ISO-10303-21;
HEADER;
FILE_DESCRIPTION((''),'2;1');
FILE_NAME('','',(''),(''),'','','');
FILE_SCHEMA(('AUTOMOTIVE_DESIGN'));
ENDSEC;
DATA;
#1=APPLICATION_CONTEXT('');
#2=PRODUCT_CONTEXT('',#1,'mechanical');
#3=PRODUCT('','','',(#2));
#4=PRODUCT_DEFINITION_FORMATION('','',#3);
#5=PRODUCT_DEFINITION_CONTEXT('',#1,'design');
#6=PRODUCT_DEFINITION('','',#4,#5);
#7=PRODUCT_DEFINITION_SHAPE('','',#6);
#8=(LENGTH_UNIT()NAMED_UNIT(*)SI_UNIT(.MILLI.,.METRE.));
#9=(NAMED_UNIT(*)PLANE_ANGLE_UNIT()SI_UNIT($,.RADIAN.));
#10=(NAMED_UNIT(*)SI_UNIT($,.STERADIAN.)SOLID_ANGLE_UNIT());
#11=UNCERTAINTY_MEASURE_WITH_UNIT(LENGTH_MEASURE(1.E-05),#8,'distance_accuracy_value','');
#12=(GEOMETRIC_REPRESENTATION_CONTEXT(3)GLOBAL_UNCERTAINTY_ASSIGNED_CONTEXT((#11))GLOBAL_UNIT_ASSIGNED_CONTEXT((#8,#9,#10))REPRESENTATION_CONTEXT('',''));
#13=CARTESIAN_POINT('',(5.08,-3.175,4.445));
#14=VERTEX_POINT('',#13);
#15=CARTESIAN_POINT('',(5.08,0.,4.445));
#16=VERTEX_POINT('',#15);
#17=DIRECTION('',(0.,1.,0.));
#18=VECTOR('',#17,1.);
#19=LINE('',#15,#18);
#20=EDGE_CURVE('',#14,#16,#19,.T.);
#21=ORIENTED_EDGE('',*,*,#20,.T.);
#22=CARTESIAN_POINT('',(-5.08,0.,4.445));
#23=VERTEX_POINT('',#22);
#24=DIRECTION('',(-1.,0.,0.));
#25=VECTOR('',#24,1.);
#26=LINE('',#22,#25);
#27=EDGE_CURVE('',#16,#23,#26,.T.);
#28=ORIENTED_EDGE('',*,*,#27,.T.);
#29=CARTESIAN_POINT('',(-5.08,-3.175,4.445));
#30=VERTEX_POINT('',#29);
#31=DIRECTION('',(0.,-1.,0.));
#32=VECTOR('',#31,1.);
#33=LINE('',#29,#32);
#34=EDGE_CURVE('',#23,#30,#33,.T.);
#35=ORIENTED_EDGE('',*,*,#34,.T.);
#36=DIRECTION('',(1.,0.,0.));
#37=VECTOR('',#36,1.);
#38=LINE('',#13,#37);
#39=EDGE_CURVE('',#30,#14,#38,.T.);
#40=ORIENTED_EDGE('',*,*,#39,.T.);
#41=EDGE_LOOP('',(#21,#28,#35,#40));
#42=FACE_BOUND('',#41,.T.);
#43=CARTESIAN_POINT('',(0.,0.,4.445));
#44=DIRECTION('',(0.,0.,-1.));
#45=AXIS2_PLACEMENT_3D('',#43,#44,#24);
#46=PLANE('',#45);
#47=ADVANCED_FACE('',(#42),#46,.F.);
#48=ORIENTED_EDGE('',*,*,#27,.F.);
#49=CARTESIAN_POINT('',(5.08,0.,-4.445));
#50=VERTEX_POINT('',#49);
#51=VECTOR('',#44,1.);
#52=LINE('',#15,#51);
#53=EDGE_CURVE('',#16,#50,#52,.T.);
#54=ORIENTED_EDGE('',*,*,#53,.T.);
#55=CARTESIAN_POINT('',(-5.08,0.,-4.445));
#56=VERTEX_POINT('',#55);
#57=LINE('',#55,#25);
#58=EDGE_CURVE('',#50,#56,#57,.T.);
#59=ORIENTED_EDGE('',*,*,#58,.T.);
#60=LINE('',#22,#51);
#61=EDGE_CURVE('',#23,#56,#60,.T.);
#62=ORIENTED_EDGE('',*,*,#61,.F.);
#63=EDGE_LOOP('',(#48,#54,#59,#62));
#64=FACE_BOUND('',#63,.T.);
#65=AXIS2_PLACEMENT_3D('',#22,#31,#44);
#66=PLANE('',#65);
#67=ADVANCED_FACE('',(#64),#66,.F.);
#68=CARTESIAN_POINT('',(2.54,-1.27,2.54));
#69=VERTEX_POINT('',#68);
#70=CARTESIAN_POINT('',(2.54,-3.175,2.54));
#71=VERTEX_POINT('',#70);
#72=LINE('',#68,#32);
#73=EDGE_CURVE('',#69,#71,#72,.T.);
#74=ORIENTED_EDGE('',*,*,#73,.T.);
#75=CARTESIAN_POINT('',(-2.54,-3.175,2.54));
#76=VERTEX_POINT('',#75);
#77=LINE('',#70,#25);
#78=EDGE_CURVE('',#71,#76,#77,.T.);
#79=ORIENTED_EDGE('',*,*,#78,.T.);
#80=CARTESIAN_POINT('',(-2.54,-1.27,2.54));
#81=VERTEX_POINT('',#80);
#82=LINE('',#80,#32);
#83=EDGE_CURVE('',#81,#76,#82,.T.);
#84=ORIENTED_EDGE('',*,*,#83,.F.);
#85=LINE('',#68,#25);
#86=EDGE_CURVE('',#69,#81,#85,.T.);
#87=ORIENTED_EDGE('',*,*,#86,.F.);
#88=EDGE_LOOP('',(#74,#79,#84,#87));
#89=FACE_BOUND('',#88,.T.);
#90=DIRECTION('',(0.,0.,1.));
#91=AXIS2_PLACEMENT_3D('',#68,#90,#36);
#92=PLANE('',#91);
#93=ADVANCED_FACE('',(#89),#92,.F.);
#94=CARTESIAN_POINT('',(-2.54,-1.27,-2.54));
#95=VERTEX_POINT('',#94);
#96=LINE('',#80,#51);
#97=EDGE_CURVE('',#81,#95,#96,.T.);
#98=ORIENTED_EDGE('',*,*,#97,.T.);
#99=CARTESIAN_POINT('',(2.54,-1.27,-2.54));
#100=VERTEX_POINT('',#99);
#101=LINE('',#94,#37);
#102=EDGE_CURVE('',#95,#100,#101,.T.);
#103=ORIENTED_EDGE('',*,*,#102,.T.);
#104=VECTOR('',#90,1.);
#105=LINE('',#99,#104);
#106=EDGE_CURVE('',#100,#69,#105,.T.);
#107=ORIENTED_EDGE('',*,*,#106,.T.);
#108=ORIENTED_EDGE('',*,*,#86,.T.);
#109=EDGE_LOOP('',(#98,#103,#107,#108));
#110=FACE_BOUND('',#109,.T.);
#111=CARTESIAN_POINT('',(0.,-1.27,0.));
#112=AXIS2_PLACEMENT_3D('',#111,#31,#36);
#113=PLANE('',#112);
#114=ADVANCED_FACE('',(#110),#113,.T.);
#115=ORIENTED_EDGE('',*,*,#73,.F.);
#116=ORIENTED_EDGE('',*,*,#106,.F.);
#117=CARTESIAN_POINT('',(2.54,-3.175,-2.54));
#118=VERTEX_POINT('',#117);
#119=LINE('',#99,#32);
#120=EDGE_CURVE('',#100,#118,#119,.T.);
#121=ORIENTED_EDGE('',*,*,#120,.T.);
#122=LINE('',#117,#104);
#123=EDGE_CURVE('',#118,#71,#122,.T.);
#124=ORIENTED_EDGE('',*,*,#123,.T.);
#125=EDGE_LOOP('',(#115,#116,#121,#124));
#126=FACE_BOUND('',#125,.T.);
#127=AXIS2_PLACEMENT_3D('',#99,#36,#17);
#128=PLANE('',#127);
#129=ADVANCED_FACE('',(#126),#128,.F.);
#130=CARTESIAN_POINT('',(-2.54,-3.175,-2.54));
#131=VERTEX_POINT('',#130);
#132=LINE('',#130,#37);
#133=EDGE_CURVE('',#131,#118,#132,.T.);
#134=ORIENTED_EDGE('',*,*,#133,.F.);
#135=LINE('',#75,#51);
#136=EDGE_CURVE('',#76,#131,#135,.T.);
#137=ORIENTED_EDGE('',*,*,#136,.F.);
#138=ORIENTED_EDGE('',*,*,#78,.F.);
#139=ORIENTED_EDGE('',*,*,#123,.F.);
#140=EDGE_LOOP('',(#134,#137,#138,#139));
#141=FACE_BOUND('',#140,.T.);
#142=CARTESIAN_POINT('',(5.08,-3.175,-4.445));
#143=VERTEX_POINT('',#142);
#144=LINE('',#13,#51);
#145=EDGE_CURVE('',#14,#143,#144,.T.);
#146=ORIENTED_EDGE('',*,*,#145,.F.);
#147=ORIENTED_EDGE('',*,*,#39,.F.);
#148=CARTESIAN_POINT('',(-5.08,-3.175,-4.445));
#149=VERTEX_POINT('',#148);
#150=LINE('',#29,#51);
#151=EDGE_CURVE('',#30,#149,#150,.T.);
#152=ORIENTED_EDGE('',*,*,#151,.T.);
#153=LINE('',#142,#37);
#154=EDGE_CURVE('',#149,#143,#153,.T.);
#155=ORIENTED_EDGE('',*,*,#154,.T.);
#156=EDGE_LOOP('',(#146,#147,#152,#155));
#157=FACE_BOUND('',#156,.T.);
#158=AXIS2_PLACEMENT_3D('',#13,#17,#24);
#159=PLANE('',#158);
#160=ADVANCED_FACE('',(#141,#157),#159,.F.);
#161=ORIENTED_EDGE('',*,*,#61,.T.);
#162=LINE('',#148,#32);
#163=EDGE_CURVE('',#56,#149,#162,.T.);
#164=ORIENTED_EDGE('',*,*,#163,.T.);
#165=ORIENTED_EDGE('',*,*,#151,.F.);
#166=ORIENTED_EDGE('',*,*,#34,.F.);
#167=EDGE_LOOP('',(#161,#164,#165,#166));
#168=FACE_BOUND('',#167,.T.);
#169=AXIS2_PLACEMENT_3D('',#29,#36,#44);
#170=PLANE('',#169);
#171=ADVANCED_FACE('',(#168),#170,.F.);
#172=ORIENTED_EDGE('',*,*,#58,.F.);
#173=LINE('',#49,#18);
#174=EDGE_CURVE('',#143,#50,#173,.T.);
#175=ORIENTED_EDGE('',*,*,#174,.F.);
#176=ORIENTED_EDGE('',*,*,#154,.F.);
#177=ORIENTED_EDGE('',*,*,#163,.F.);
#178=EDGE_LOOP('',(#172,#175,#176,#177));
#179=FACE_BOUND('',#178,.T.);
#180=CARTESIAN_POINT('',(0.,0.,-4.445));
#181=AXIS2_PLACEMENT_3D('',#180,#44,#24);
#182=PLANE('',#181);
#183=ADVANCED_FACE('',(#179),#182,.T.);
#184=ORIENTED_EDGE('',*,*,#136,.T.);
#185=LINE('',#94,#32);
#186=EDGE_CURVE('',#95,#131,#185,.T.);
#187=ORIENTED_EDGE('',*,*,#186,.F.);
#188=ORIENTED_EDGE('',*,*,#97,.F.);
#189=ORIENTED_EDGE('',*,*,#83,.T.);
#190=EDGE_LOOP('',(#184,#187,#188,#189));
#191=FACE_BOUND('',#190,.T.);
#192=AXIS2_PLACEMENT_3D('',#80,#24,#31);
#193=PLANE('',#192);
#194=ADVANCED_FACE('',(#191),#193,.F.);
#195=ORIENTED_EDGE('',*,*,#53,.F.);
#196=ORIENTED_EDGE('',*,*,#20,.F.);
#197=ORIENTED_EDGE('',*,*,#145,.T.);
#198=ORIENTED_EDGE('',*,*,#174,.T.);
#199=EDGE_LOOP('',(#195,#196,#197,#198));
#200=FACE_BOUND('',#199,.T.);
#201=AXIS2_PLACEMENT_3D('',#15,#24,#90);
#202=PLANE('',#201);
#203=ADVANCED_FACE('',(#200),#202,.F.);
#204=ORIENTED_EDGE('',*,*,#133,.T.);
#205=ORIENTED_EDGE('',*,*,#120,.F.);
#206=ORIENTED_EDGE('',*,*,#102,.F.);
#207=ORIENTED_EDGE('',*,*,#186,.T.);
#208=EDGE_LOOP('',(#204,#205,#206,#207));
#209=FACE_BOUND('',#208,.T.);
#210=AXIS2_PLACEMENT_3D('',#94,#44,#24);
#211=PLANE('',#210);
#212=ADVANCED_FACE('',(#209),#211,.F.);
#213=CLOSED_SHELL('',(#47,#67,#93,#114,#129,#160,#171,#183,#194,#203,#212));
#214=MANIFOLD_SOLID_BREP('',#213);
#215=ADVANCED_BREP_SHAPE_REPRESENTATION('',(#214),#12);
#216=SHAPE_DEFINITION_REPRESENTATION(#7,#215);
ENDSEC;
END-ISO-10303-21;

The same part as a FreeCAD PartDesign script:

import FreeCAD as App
import Part
import Sketcher
from FreeCAD import Vector
Q = App.Units.Quantity

doc = App.newDocument("Part")
body = doc.addObject("PartDesign::Body", "Body")

sketch1 = body.newObject("Sketcher::SketchObject", "Sketch")
sketch1.AttachmentSupport = (doc.getObject("XY_Plane"), [""])
sketch1.MapMode = "FlatFace"
sketch1.addGeometry(Part.LineSegment(Vector(-5.08, 0, 0), Vector(-5.08, -3.175, 0)), False)
sketch1.addGeometry(Part.LineSegment(Vector(-5.08, -3.175, 0), Vector(5.08, -3.175, 0)), False)
sketch1.addGeometry(Part.LineSegment(Vector(5.08, -3.175, 0), Vector(5.08, 0, 0)), False)
sketch1.addGeometry(Part.LineSegment(Vector(5.08, 0, 0), Vector(-5.08, 0, 0)), False)
sketch1.addConstraint(Sketcher.Constraint("Coincident", 0, 2, 1, 1))
sketch1.addConstraint(Sketcher.Constraint("Coincident", 1, 2, 2, 1))
sketch1.addConstraint(Sketcher.Constraint("Coincident", 2, 2, 3, 1))
sketch1.addConstraint(Sketcher.Constraint("Coincident", 3, 2, 0, 1))
sketch1.addConstraint(Sketcher.Constraint("Vertical", 0))
sketch1.addConstraint(Sketcher.Constraint("Horizontal", 1))
sketch1.addConstraint(Sketcher.Constraint("Vertical", 2))
sketch1.addConstraint(Sketcher.Constraint("Horizontal", 3))
sketch1.addConstraint(Sketcher.Constraint("Symmetric", 2, 2, 3, 2, -1, 1))
sketch1.addConstraint(Sketcher.Constraint("DistanceX", 1, 1, 1, 2, Q("0.4 in")))
sketch1.addConstraint(Sketcher.Constraint("DistanceY", 0, 2, 0, 1, Q("0.125 in")))
pad1 = body.newObject("PartDesign::Pad", "Pad")
pad1.Profile = sketch1
pad1.Length = Q("0.35 in")
pad1.Midplane = True

sketch2 = body.newObject("Sketcher::SketchObject", "Sketch001")
sketch2.AttachmentSupport = (doc.getObject("XZ_Plane"), [""])
sketch2.MapMode = "FlatFace"
sketch2.AttachmentOffset = App.Placement(Vector(0, 0, 0.125 * 25.4), App.Rotation())
sketch2.addGeometry(Part.LineSegment(Vector(-7.467, 6.832, 0), Vector(-7.467, -6.832, 0)), False)
sketch2.addGeometry(Part.LineSegment(Vector(-7.467, -6.832, 0), Vector(7.467, -6.832, 0)), False)
sketch2.addGeometry(Part.LineSegment(Vector(7.467, -6.832, 0), Vector(7.467, 6.832, 0)), False)
sketch2.addGeometry(Part.LineSegment(Vector(7.467, 6.832, 0), Vector(-7.467, 6.832, 0)), False)
sketch2.addGeometry(Part.LineSegment(Vector(5.08, -4.445, 0), Vector(-5.08, -4.445, 0)), False)
sketch2.addGeometry(Part.LineSegment(Vector(-5.08, -4.445, 0), Vector(-5.08, 4.445, 0)), False)
sketch2.addGeometry(Part.LineSegment(Vector(-5.08, 4.445, 0), Vector(5.08, 4.445, 0)), False)
sketch2.addGeometry(Part.LineSegment(Vector(5.08, 4.445, 0), Vector(5.08, -4.445, 0)), False)
sketch2.addGeometry(Part.LineSegment(Vector(-2.54, 2.54, 0), Vector(-2.54, -2.54, 0)), False)
sketch2.addGeometry(Part.LineSegment(Vector(-2.54, -2.54, 0), Vector(2.54, -2.54, 0)), False)
sketch2.addGeometry(Part.LineSegment(Vector(2.54, -2.54, 0), Vector(2.54, 2.54, 0)), False)
sketch2.addGeometry(Part.LineSegment(Vector(2.54, 2.54, 0), Vector(-2.54, 2.54, 0)), False)
sketch2.addConstraint(Sketcher.Constraint("Coincident", 0, 2, 1, 1))
sketch2.addConstraint(Sketcher.Constraint("Coincident", 1, 2, 2, 1))
sketch2.addConstraint(Sketcher.Constraint("Coincident", 2, 2, 3, 1))
sketch2.addConstraint(Sketcher.Constraint("Coincident", 3, 2, 0, 1))
sketch2.addConstraint(Sketcher.Constraint("Coincident", 4, 2, 5, 1))
sketch2.addConstraint(Sketcher.Constraint("Coincident", 5, 2, 6, 1))
sketch2.addConstraint(Sketcher.Constraint("Coincident", 6, 2, 7, 1))
sketch2.addConstraint(Sketcher.Constraint("Coincident", 7, 2, 4, 1))
sketch2.addConstraint(Sketcher.Constraint("Coincident", 8, 2, 9, 1))
sketch2.addConstraint(Sketcher.Constraint("Coincident", 9, 2, 10, 1))
sketch2.addConstraint(Sketcher.Constraint("Coincident", 10, 2, 11, 1))
sketch2.addConstraint(Sketcher.Constraint("Coincident", 11, 2, 8, 1))
sketch2.addConstraint(Sketcher.Constraint("Vertical", 0))
sketch2.addConstraint(Sketcher.Constraint("Horizontal", 1))
sketch2.addConstraint(Sketcher.Constraint("Vertical", 2))
sketch2.addConstraint(Sketcher.Constraint("Horizontal", 3))
sketch2.addConstraint(Sketcher.Constraint("Horizontal", 4))
sketch2.addConstraint(Sketcher.Constraint("Vertical", 5))
sketch2.addConstraint(Sketcher.Constraint("Horizontal", 6))
sketch2.addConstraint(Sketcher.Constraint("Vertical", 7))
sketch2.addConstraint(Sketcher.Constraint("Vertical", 8))
sketch2.addConstraint(Sketcher.Constraint("Horizontal", 9))
sketch2.addConstraint(Sketcher.Constraint("Vertical", 10))
sketch2.addConstraint(Sketcher.Constraint("Horizontal", 11))
sketch2.addConstraint(Sketcher.Constraint("Symmetric", 0, 2, 2, 2, -1, 1))
sketch2.addConstraint(Sketcher.Constraint("Symmetric", 4, 2, 6, 2, -1, 1))
sketch2.addConstraint(Sketcher.Constraint("Symmetric", 8, 2, 10, 2, -1, 1))
sketch2.addConstraint(Sketcher.Constraint("Equal", 11, 8))
sketch2.addConstraint(Sketcher.Constraint("DistanceX", 4, 2, 4, 1, Q("0.4 in")))
sketch2.addConstraint(Sketcher.Constraint("DistanceX", 9, 1, 9, 2, Q("0.2 in")))
sketch2.addConstraint(Sketcher.Constraint("DistanceY", 5, 1, 5, 2, Q("0.35 in")))
sketch2.addConstraint(Sketcher.Constraint("DistanceX", 1, 1, 1, 2, Q("14.934 mm")))
sketch2.addConstraint(Sketcher.Constraint("DistanceY", 0, 2, 0, 1, Q("13.664 mm")))
pocket1 = body.newObject("PartDesign::Pocket", "Pocket")
pocket1.Profile = sketch2
pocket1.Length = Q("0.075 in")

doc.recompute()
